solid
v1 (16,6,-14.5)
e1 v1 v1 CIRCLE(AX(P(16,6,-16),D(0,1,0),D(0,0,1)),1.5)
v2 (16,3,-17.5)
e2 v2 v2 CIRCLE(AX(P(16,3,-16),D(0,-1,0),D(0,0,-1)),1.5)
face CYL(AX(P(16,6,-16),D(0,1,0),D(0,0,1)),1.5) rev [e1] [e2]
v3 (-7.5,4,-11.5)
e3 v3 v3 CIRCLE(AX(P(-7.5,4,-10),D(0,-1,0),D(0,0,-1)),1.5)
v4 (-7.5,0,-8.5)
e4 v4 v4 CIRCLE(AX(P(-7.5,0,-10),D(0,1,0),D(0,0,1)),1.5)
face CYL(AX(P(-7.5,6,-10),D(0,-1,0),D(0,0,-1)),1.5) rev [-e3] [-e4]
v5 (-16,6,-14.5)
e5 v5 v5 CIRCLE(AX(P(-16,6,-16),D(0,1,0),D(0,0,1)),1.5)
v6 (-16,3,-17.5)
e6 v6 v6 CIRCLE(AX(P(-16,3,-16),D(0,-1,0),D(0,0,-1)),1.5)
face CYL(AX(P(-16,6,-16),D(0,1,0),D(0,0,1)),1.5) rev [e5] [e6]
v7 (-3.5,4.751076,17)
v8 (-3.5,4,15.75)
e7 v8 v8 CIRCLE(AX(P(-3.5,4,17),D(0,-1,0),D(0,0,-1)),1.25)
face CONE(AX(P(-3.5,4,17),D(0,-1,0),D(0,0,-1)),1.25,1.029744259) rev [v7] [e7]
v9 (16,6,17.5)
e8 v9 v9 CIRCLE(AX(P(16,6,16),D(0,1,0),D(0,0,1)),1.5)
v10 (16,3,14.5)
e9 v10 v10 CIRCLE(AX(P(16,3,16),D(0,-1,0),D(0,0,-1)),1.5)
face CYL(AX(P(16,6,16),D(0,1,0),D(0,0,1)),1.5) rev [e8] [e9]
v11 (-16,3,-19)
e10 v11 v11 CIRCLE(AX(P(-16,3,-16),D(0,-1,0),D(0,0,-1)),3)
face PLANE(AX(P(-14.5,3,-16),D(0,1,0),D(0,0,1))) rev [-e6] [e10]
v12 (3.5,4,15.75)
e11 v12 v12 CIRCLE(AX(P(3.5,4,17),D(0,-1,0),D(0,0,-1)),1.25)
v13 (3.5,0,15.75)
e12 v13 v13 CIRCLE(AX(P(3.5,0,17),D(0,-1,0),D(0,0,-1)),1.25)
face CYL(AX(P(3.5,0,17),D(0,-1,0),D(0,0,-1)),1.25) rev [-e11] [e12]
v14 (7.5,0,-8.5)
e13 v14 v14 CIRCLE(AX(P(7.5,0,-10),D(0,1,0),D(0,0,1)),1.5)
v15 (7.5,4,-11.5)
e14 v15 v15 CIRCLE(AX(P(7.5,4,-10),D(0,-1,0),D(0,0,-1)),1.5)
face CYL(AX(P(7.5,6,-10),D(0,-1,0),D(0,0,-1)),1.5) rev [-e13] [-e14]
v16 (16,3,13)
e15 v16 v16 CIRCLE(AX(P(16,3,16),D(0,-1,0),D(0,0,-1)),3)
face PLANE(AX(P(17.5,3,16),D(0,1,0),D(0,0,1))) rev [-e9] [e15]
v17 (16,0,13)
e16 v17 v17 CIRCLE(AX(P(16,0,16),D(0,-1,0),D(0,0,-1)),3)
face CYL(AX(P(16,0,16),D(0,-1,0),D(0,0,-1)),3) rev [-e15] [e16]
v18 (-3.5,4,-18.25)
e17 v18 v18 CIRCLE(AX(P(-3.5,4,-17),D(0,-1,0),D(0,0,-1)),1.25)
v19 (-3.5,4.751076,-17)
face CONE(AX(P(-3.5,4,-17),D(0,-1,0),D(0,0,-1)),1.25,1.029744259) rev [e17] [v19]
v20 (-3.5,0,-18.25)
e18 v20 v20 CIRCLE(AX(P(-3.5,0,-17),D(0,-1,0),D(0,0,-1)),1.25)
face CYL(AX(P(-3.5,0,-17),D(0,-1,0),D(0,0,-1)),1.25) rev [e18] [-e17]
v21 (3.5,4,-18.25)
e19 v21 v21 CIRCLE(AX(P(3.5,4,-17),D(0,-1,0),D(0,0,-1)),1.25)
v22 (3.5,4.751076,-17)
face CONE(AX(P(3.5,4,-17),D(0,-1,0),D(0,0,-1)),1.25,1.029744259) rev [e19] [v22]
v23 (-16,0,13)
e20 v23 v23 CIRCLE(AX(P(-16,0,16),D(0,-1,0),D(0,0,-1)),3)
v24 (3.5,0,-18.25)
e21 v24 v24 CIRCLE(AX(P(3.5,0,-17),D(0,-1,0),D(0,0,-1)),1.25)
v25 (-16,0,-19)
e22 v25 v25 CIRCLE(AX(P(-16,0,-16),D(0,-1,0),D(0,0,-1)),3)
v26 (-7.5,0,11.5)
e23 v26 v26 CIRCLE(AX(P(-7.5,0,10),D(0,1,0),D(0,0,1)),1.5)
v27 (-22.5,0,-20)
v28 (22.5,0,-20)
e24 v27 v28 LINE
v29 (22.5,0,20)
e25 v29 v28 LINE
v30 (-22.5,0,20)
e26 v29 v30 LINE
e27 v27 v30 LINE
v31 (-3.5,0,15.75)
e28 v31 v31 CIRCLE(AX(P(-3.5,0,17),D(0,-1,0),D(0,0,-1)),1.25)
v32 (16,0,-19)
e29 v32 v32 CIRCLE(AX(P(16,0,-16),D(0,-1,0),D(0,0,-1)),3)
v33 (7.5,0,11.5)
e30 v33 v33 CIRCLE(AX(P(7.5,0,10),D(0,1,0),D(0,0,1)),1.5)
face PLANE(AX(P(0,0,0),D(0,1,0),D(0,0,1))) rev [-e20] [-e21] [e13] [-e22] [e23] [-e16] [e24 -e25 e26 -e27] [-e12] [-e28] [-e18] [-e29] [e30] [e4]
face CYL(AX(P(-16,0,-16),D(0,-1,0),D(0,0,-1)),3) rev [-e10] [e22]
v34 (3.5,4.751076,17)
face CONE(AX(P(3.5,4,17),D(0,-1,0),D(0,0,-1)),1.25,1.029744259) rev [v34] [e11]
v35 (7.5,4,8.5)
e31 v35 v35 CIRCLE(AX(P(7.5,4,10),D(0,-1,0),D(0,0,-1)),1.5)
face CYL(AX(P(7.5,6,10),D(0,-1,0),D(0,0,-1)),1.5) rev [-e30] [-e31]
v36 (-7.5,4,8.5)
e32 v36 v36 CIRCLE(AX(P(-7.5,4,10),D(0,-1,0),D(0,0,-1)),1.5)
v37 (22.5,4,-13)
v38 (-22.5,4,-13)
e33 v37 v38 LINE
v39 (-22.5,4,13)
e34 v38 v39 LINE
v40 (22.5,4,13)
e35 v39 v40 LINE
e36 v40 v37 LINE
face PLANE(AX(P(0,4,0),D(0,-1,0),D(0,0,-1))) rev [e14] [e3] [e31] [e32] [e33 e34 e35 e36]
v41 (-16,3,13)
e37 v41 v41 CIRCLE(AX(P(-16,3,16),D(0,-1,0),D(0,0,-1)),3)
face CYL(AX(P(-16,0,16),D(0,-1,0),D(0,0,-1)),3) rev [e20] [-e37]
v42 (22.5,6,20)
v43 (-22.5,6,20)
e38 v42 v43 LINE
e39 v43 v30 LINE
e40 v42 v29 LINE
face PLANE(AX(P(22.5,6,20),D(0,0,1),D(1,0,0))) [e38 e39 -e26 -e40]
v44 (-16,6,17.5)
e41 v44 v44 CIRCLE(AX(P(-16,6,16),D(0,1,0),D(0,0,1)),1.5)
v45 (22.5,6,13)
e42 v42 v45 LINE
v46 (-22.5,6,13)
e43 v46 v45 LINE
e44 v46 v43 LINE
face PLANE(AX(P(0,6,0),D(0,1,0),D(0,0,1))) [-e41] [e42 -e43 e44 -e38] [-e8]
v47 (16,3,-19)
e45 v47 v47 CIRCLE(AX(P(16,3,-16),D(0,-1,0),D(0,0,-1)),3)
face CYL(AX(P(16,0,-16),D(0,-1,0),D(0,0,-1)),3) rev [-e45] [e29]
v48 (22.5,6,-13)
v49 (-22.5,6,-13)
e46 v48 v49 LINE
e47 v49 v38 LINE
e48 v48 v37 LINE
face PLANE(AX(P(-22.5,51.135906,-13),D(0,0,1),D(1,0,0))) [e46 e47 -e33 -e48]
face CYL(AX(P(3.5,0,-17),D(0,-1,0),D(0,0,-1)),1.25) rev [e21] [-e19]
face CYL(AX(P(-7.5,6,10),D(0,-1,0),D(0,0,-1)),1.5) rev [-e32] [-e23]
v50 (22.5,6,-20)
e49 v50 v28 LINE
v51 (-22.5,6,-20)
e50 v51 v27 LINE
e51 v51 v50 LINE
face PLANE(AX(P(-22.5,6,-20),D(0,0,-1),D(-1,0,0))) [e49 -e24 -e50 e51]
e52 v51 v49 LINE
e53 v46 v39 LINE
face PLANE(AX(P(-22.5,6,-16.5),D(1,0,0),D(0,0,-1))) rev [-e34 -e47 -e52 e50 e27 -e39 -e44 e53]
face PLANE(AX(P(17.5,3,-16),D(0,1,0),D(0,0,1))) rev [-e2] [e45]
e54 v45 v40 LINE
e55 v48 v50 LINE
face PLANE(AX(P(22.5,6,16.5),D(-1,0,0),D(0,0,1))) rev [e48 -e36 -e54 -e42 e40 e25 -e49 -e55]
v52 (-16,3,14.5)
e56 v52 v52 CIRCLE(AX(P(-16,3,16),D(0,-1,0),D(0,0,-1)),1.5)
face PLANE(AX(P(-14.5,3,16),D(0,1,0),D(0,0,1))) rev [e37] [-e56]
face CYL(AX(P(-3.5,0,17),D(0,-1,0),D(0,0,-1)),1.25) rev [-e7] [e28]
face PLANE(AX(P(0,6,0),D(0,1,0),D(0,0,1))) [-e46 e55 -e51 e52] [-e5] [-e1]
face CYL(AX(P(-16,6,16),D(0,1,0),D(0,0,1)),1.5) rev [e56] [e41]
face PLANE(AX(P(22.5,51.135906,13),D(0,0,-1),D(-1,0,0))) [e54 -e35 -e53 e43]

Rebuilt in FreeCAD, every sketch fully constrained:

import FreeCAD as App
import Part
import Sketcher
from FreeCAD import Vector
Q = App.Units.Quantity


def add_polygon(sketch, points):
    """Adds a closed chain of lines whose ends are joined by coincident constraints."""
    first, n = sketch.GeometryCount, len(points)
    for a, b in zip(points, points[1:] + points[:1]):
        sketch.addGeometry(Part.LineSegment(App.Vector(*a, 0), App.Vector(*b, 0)), False)
    for i in range(n):
        sketch.addConstraint(Sketcher.Constraint("Coincident", first + i, 2, first + (i + 1) % n, 1))

doc = App.newDocument("Part")
params = doc.addObject("Spreadsheet::Sheet", "Params")
for row, (alias, value) in enumerate([
    ("sketch1_diameter", "3 mm"),
    ("sketch1_width", "45 mm"),
    ("sketch1_height", "33 mm"),
    ("pad1_length", "6 mm"),
    ("sketch2_width", "45 mm"),
    ("sketch2_height", "3.5 mm"),
    ("pad2_length", "6 mm"),
    ("sketch3_width", "45 mm"),
    ("sketch3_height", "27.5 mm"),
    ("pocket1_length", "2 mm"),
    ("sketch4_width", "45 mm"),
    ("sketch4_height", "3.5 mm"),
    ("pad3_length", "2 mm"),
    ("sketch5_diameter", "3 mm"),
    ("hole_diameter", "3 mm"),
    ("hole_depth", "6 mm"),
    ("sketch6_diameter", "2.5 mm"),
    ("hole2_diameter", "2.5 mm"),
    ("hole2_depth", "4 mm"),
    ("sketch7_diameter", "3 mm"),
    ("hole3_diameter", "3 mm"),
    ("hole3_depth", "6 mm"),
    ("hole3_cbore_diameter", "6 mm"),
    ("hole3_cbore_depth", "3 mm"),
], start=1):
    params.set(f"A{row}", alias)
    params.set(f"B{row}", "=" + value)
    params.setAlias(f"B{row}", alias)

body = doc.addObject("PartDesign::Body", "Body")

# Sketch on XZ plane
sketch1 = body.newObject("Sketcher::SketchObject", "Sketch")
sketch1.AttachmentSupport = (doc.getObject("XZ_Plane"), [""])
sketch1.MapMode = "FlatFace"
add_polygon(sketch1, [(-22.5, -16.5), (-22.5, 16.5), (22.5, 16.5), (22.5, -16.5)])  # lines 0-3
sketch1.addGeometry(Part.Circle(Vector(-7.5, 10, 0), Vector(0, 0, 1), 1.5), False)  # 4
sketch1.addGeometry(Part.Circle(Vector(7.5, 10, 0), Vector(0, 0, 1), 1.5), False)  # 5
sketch1.addGeometry(Part.Circle(Vector(-7.5, -10, 0), Vector(0, 0, 1), 1.5), False)  # 6
sketch1.addGeometry(Part.Circle(Vector(7.5, -10, 0), Vector(0, 0, 1), 1.5), False)  # 7
sketch1.addConstraint(Sketcher.Constraint("Vertical", 0))
sketch1.addConstraint(Sketcher.Constraint("Horizontal", 1))
sketch1.addConstraint(Sketcher.Constraint("Vertical", 2))
sketch1.addConstraint(Sketcher.Constraint("Horizontal", 3))
sketch1.addConstraint(Sketcher.Constraint("Equal", 4, 5))
sketch1.addConstraint(Sketcher.Constraint("Equal", 5, 6))
sketch1.addConstraint(Sketcher.Constraint("Equal", 6, 7))
sketch1.addConstraint(Sketcher.Constraint("Symmetric", 5, 3, 6, 3, -1, 1))
sketch1.addConstraint(Sketcher.Constraint("Symmetric", 4, 3, 7, 3, -1, 1))
sketch1.addConstraint(Sketcher.Constraint("Symmetric", 0, 2, 2, 2, -1, 1))
sketch1.addConstraint(Sketcher.Constraint("Symmetric", 4, 3, 5, 3, -2))
sketch1.addConstraint(Sketcher.Constraint("Diameter", 4, Q("3 mm")))
sketch1.addConstraint(Sketcher.Constraint("DistanceX", 1, 1, 1, 2, Q("45 mm")))
sketch1.addConstraint(Sketcher.Constraint("DistanceY", 0, 1, 0, 2, Q("33 mm")))
sketch1.addConstraint(Sketcher.Constraint("DistanceY", -1, 1, 4, 3, Q("10 mm")))
sketch1.addConstraint(Sketcher.Constraint("DistanceX", 4, 3, 5, 3, Q("15 mm")))
sketch1.setExpression("Constraints[15]", "Params.sketch1_diameter")
sketch1.setExpression("Constraints[16]", "Params.sketch1_width")
sketch1.setExpression("Constraints[17]", "Params.sketch1_height")
pad1 = body.newObject("PartDesign::Pad", "Pad")
pad1.Profile = sketch1
pad1.setExpression("Length", "Params.pad1_length")
pad1.Reversed = True

# Sketch on XZ plane
sketch2 = body.newObject("Sketcher::SketchObject", "Sketch001")
sketch2.AttachmentSupport = (doc.getObject("XZ_Plane"), [""])
sketch2.MapMode = "FlatFace"
add_polygon(sketch2, [(-22.5, -16.5), (-22.5, -20), (22.5, -20), (22.5, -16.5)])  # lines 0-3
add_polygon(sketch2, [(-22.5, 20), (-22.5, 16.5), (22.5, 16.5), (22.5, 20)])  # lines 4-7
sketch2.addConstraint(Sketcher.Constraint("Vertical", 0))
sketch2.addConstraint(Sketcher.Constraint("Horizontal", 1))
sketch2.addConstraint(Sketcher.Constraint("Vertical", 2))
sketch2.addConstraint(Sketcher.Constraint("Horizontal", 3))
sketch2.addConstraint(Sketcher.Constraint("Vertical", 4))
sketch2.addConstraint(Sketcher.Constraint("Horizontal", 5))
sketch2.addConstraint(Sketcher.Constraint("Vertical", 6))
sketch2.addConstraint(Sketcher.Constraint("Horizontal", 7))
sketch2.addConstraint(Sketcher.Constraint("Symmetric", 2, 2, 4, 2, -1, 1))
sketch2.addConstraint(Sketcher.Constraint("Symmetric", 0, 2, 6, 2, -1, 1))
sketch2.addConstraint(Sketcher.Constraint("Vertical", 3, 2, 4, 2))
sketch2.addConstraint(Sketcher.Constraint("DistanceX", 1, 1, 1, 2, Q("45 mm")))
sketch2.addConstraint(Sketcher.Constraint("DistanceY", 0, 2, 0, 1, Q("3.5 mm")))
sketch2.addConstraint(Sketcher.Constraint("DistanceY", 0, 2, -1, 1, Q("20 mm")))
sketch2.setExpression("Constraints[19]", "Params.sketch2_width")
sketch2.setExpression("Constraints[20]", "Params.sketch2_height")
pad2 = body.newObject("PartDesign::Pad", "Pad001")
pad2.Profile = sketch2
pad2.setExpression("Length", "Params.pad2_length")
pad2.Reversed = True

# Sketch on XZ plane
sketch3 = body.newObject("Sketcher::SketchObject", "Sketch002")
sketch3.AttachmentSupport = (doc.getObject("XZ_Plane"), [""])
sketch3.MapMode = "FlatFace"
sketch3.AttachmentOffset = App.Placement(Vector(0, 0, -6), App.Rotation())
add_polygon(sketch3, [(-22.5, -13.75), (-22.5, 13.75), (22.5, 13.75), (22.5, -13.75)])  # lines 0-3
sketch3.addConstraint(Sketcher.Constraint("Vertical", 0))
sketch3.addConstraint(Sketcher.Constraint("Horizontal", 1))
sketch3.addConstraint(Sketcher.Constraint("Vertical", 2))
sketch3.addConstraint(Sketcher.Constraint("Horizontal", 3))
sketch3.addConstraint(Sketcher.Constraint("Symmetric", 0, 2, 2, 2, -1, 1))
sketch3.addConstraint(Sketcher.Constraint("DistanceX", 1, 1, 1, 2, Q("45 mm")))
sketch3.addConstraint(Sketcher.Constraint("DistanceY", 0, 1, 0, 2, Q("27.5 mm")))
sketch3.setExpression("Constraints[9]", "Params.sketch3_width")
sketch3.setExpression("Constraints[10]", "Params.sketch3_height")
pocket1 = body.newObject("PartDesign::Pocket", "Pocket")
pocket1.Profile = sketch3
pocket1.setExpression("Length", "Params.pocket1_length")
pocket1.Reversed = True

# Sketch on XZ plane
sketch4 = body.newObject("Sketcher::SketchObject", "Sketch003")
sketch4.AttachmentSupport = (doc.getObject("XZ_Plane"), [""])
sketch4.MapMode = "FlatFace"
sketch4.AttachmentOffset = App.Placement(Vector(0, 0, -6), App.Rotation())
add_polygon(sketch4, [(-22.5, -13), (-22.5, -16.5), (22.5, -16.5), (22.5, -13)])  # lines 0-3
add_polygon(sketch4, [(-22.5, 16.5), (-22.5, 13), (22.5, 13), (22.5, 16.5)])  # lines 4-7
sketch4.addConstraint(Sketcher.Constraint("Vertical", 0))
sketch4.addConstraint(Sketcher.Constraint("Horizontal", 1))
sketch4.addConstraint(Sketcher.Constraint("Vertical", 2))
sketch4.addConstraint(Sketcher.Constraint("Horizontal", 3))
sketch4.addConstraint(Sketcher.Constraint("Vertical", 4))
sketch4.addConstraint(Sketcher.Constraint("Horizontal", 5))
sketch4.addConstraint(Sketcher.Constraint("Vertical", 6))
sketch4.addConstraint(Sketcher.Constraint("Horizontal", 7))
sketch4.addConstraint(Sketcher.Constraint("Symmetric", 2, 2, 4, 2, -1, 1))
sketch4.addConstraint(Sketcher.Constraint("Symmetric", 0, 2, 6, 2, -1, 1))
sketch4.addConstraint(Sketcher.Constraint("Vertical", 3, 2, 4, 2))
sketch4.addConstraint(Sketcher.Constraint("DistanceX", 1, 1, 1, 2, Q("45 mm")))
sketch4.addConstraint(Sketcher.Constraint("DistanceY", 0, 2, 0, 1, Q("3.5 mm")))
sketch4.addConstraint(Sketcher.Constraint("DistanceY", 2, 2, -1, 1, Q("13 mm")))
sketch4.setExpression("Constraints[19]", "Params.sketch4_width")
sketch4.setExpression("Constraints[20]", "Params.sketch4_height")
pad3 = body.newObject("PartDesign::Pad", "Pad002")
pad3.Profile = sketch4
pad3.setExpression("Length", "Params.pad3_length")

# Sketch on XZ plane
sketch5 = body.newObject("Sketcher::SketchObject", "Sketch004")
sketch5.AttachmentSupport = (doc.getObject("XZ_Plane"), [""])
sketch5.MapMode = "FlatFace"
sketch5.AttachmentOffset = App.Placement(Vector(0, 0, -6), App.Rotation())
sketch5.addGeometry(Part.Circle(Vector(-16, -16, 0), Vector(0, 0, 1), 1.5), False)
sketch5.addGeometry(Part.Circle(Vector(16, -16, 0), Vector(0, 0, 1), 1.5), False)
sketch5.addGeometry(Part.Circle(Vector(16, 16, 0), Vector(0, 0, 1), 1.5), False)
sketch5.addGeometry(Part.Circle(Vector(-16, 16, 0), Vector(0, 0, 1), 1.5), False)
sketch5.addConstraint(Sketcher.Constraint("Equal", 0, 1))
sketch5.addConstraint(Sketcher.Constraint("Equal", 1, 2))
sketch5.addConstraint(Sketcher.Constraint("Equal", 2, 3))
sketch5.addConstraint(Sketcher.Constraint("Symmetric", 0, 3, 2, 3, -1, 1))
sketch5.addConstraint(Sketcher.Constraint("Symmetric", 1, 3, 3, 3, -1, 1))
sketch5.addConstraint(Sketcher.Constraint("Symmetric", 0, 3, 1, 3, -2))
sketch5.addConstraint(Sketcher.Constraint("Diameter", 0, Q("3 mm")))
sketch5.addConstraint(Sketcher.Constraint("DistanceX", 0, 3, -1, 1, Q("16 mm")))
sketch5.addConstraint(Sketcher.Constraint("DistanceY", 0, 3, -1, 1, Q("16 mm")))
sketch5.setExpression("Constraints[6]", "Params.sketch5_diameter")
doc.recompute()
hole = body.newObject("PartDesign::Hole", "Hole")
hole.Profile = sketch5
hole.ThreadType = "None"
hole.setExpression("Diameter", "Params.hole_diameter")
hole.DepthType = "Dimension"
hole.setExpression("Depth", "Params.hole_depth")
hole.DrillPoint = "Flat"
hole.Reversed = True

# Sketch on XZ plane
sketch6 = body.newObject("Sketcher::SketchObject", "Sketch005")
sketch6.AttachmentSupport = (doc.getObject("XZ_Plane"), [""])
sketch6.MapMode = "FlatFace"
sketch6.addGeometry(Part.Circle(Vector(-3.5, 17, 0), Vector(0, 0, 1), 1.25), False)
sketch6.addGeometry(Part.Circle(Vector(3.5, 17, 0), Vector(0, 0, 1), 1.25), False)
sketch6.addGeometry(Part.Circle(Vector(3.5, -17, 0), Vector(0, 0, 1), 1.25), False)
sketch6.addGeometry(Part.Circle(Vector(-3.5, -17, 0), Vector(0, 0, 1), 1.25), False)
sketch6.addConstraint(Sketcher.Constraint("Equal", 0, 1))
sketch6.addConstraint(Sketcher.Constraint("Equal", 1, 2))
sketch6.addConstraint(Sketcher.Constraint("Equal", 2, 3))
sketch6.addConstraint(Sketcher.Constraint("Symmetric", 0, 3, 2, 3, -1, 1))
sketch6.addConstraint(Sketcher.Constraint("Symmetric", 1, 3, 3, 3, -1, 1))
sketch6.addConstraint(Sketcher.Constraint("Symmetric", 0, 3, 1, 3, -2))
sketch6.addConstraint(Sketcher.Constraint("Diameter", 0, Q("2.5 mm")))
sketch6.addConstraint(Sketcher.Constraint("DistanceY", -1, 1, 0, 3, Q("17 mm")))
sketch6.addConstraint(Sketcher.Constraint("DistanceX", 0, 3, 1, 3, Q("7 mm")))
sketch6.setExpression("Constraints[6]", "Params.sketch6_diameter")
doc.recompute()
hole2 = body.newObject("PartDesign::Hole", "Hole001")
hole2.Profile = sketch6
hole2.ThreadType = "None"
hole2.setExpression("Diameter", "Params.hole2_diameter")
hole2.DepthType = "Dimension"
hole2.setExpression("Depth", "Params.hole2_depth")
hole2.DrillPoint = "Angled"
hole2.DrillPointAngle = 118

# Sketch on XZ plane
sketch7 = body.newObject("Sketcher::SketchObject", "Sketch006")
sketch7.AttachmentSupport = (doc.getObject("XZ_Plane"), [""])
sketch7.MapMode = "FlatFace"
sketch7.addGeometry(Part.Circle(Vector(16, -16, 0), Vector(0, 0, 1), 1.5), False)
sketch7.addGeometry(Part.Circle(Vector(-16, -16, 0), Vector(0, 0, 1), 1.5), False)
sketch7.addGeometry(Part.Circle(Vector(-16, 16, 0), Vector(0, 0, 1), 1.5), False)
sketch7.addGeometry(Part.Circle(Vector(16, 16, 0), Vector(0, 0, 1), 1.5), False)
sketch7.addConstraint(Sketcher.Constraint("Equal", 0, 1))
sketch7.addConstraint(Sketcher.Constraint("Equal", 1, 2))
sketch7.addConstraint(Sketcher.Constraint("Equal", 2, 3))
sketch7.addConstraint(Sketcher.Constraint("Symmetric", 0, 3, 2, 3, -1, 1))
sketch7.addConstraint(Sketcher.Constraint("Symmetric", 1, 3, 3, 3, -1, 1))
sketch7.addConstraint(Sketcher.Constraint("Symmetric", 0, 3, 1, 3, -2))
sketch7.addConstraint(Sketcher.Constraint("Diameter", 0, Q("3 mm")))
sketch7.addConstraint(Sketcher.Constraint("DistanceX", -1, 1, 0, 3, Q("16 mm")))
sketch7.addConstraint(Sketcher.Constraint("DistanceY", 0, 3, -1, 1, Q("16 mm")))
sketch7.setExpression("Constraints[6]", "Params.sketch7_diameter")
doc.recompute()
hole3 = body.newObject("PartDesign::Hole", "Hole002")
hole3.Profile = sketch7
hole3.ThreadType = "None"
hole3.setExpression("Diameter", "Params.hole3_diameter")
hole3.DepthType = "Dimension"
hole3.setExpression("Depth", "Params.hole3_depth")
hole3.DrillPoint = "Flat"
hole3.HoleCutType = "Counterbore"
hole3.setExpression("HoleCutDiameter", "Params.hole3_cbore_diameter")
hole3.setExpression("HoleCutDepth", "Params.hole3_cbore_depth")

doc.recompute()
